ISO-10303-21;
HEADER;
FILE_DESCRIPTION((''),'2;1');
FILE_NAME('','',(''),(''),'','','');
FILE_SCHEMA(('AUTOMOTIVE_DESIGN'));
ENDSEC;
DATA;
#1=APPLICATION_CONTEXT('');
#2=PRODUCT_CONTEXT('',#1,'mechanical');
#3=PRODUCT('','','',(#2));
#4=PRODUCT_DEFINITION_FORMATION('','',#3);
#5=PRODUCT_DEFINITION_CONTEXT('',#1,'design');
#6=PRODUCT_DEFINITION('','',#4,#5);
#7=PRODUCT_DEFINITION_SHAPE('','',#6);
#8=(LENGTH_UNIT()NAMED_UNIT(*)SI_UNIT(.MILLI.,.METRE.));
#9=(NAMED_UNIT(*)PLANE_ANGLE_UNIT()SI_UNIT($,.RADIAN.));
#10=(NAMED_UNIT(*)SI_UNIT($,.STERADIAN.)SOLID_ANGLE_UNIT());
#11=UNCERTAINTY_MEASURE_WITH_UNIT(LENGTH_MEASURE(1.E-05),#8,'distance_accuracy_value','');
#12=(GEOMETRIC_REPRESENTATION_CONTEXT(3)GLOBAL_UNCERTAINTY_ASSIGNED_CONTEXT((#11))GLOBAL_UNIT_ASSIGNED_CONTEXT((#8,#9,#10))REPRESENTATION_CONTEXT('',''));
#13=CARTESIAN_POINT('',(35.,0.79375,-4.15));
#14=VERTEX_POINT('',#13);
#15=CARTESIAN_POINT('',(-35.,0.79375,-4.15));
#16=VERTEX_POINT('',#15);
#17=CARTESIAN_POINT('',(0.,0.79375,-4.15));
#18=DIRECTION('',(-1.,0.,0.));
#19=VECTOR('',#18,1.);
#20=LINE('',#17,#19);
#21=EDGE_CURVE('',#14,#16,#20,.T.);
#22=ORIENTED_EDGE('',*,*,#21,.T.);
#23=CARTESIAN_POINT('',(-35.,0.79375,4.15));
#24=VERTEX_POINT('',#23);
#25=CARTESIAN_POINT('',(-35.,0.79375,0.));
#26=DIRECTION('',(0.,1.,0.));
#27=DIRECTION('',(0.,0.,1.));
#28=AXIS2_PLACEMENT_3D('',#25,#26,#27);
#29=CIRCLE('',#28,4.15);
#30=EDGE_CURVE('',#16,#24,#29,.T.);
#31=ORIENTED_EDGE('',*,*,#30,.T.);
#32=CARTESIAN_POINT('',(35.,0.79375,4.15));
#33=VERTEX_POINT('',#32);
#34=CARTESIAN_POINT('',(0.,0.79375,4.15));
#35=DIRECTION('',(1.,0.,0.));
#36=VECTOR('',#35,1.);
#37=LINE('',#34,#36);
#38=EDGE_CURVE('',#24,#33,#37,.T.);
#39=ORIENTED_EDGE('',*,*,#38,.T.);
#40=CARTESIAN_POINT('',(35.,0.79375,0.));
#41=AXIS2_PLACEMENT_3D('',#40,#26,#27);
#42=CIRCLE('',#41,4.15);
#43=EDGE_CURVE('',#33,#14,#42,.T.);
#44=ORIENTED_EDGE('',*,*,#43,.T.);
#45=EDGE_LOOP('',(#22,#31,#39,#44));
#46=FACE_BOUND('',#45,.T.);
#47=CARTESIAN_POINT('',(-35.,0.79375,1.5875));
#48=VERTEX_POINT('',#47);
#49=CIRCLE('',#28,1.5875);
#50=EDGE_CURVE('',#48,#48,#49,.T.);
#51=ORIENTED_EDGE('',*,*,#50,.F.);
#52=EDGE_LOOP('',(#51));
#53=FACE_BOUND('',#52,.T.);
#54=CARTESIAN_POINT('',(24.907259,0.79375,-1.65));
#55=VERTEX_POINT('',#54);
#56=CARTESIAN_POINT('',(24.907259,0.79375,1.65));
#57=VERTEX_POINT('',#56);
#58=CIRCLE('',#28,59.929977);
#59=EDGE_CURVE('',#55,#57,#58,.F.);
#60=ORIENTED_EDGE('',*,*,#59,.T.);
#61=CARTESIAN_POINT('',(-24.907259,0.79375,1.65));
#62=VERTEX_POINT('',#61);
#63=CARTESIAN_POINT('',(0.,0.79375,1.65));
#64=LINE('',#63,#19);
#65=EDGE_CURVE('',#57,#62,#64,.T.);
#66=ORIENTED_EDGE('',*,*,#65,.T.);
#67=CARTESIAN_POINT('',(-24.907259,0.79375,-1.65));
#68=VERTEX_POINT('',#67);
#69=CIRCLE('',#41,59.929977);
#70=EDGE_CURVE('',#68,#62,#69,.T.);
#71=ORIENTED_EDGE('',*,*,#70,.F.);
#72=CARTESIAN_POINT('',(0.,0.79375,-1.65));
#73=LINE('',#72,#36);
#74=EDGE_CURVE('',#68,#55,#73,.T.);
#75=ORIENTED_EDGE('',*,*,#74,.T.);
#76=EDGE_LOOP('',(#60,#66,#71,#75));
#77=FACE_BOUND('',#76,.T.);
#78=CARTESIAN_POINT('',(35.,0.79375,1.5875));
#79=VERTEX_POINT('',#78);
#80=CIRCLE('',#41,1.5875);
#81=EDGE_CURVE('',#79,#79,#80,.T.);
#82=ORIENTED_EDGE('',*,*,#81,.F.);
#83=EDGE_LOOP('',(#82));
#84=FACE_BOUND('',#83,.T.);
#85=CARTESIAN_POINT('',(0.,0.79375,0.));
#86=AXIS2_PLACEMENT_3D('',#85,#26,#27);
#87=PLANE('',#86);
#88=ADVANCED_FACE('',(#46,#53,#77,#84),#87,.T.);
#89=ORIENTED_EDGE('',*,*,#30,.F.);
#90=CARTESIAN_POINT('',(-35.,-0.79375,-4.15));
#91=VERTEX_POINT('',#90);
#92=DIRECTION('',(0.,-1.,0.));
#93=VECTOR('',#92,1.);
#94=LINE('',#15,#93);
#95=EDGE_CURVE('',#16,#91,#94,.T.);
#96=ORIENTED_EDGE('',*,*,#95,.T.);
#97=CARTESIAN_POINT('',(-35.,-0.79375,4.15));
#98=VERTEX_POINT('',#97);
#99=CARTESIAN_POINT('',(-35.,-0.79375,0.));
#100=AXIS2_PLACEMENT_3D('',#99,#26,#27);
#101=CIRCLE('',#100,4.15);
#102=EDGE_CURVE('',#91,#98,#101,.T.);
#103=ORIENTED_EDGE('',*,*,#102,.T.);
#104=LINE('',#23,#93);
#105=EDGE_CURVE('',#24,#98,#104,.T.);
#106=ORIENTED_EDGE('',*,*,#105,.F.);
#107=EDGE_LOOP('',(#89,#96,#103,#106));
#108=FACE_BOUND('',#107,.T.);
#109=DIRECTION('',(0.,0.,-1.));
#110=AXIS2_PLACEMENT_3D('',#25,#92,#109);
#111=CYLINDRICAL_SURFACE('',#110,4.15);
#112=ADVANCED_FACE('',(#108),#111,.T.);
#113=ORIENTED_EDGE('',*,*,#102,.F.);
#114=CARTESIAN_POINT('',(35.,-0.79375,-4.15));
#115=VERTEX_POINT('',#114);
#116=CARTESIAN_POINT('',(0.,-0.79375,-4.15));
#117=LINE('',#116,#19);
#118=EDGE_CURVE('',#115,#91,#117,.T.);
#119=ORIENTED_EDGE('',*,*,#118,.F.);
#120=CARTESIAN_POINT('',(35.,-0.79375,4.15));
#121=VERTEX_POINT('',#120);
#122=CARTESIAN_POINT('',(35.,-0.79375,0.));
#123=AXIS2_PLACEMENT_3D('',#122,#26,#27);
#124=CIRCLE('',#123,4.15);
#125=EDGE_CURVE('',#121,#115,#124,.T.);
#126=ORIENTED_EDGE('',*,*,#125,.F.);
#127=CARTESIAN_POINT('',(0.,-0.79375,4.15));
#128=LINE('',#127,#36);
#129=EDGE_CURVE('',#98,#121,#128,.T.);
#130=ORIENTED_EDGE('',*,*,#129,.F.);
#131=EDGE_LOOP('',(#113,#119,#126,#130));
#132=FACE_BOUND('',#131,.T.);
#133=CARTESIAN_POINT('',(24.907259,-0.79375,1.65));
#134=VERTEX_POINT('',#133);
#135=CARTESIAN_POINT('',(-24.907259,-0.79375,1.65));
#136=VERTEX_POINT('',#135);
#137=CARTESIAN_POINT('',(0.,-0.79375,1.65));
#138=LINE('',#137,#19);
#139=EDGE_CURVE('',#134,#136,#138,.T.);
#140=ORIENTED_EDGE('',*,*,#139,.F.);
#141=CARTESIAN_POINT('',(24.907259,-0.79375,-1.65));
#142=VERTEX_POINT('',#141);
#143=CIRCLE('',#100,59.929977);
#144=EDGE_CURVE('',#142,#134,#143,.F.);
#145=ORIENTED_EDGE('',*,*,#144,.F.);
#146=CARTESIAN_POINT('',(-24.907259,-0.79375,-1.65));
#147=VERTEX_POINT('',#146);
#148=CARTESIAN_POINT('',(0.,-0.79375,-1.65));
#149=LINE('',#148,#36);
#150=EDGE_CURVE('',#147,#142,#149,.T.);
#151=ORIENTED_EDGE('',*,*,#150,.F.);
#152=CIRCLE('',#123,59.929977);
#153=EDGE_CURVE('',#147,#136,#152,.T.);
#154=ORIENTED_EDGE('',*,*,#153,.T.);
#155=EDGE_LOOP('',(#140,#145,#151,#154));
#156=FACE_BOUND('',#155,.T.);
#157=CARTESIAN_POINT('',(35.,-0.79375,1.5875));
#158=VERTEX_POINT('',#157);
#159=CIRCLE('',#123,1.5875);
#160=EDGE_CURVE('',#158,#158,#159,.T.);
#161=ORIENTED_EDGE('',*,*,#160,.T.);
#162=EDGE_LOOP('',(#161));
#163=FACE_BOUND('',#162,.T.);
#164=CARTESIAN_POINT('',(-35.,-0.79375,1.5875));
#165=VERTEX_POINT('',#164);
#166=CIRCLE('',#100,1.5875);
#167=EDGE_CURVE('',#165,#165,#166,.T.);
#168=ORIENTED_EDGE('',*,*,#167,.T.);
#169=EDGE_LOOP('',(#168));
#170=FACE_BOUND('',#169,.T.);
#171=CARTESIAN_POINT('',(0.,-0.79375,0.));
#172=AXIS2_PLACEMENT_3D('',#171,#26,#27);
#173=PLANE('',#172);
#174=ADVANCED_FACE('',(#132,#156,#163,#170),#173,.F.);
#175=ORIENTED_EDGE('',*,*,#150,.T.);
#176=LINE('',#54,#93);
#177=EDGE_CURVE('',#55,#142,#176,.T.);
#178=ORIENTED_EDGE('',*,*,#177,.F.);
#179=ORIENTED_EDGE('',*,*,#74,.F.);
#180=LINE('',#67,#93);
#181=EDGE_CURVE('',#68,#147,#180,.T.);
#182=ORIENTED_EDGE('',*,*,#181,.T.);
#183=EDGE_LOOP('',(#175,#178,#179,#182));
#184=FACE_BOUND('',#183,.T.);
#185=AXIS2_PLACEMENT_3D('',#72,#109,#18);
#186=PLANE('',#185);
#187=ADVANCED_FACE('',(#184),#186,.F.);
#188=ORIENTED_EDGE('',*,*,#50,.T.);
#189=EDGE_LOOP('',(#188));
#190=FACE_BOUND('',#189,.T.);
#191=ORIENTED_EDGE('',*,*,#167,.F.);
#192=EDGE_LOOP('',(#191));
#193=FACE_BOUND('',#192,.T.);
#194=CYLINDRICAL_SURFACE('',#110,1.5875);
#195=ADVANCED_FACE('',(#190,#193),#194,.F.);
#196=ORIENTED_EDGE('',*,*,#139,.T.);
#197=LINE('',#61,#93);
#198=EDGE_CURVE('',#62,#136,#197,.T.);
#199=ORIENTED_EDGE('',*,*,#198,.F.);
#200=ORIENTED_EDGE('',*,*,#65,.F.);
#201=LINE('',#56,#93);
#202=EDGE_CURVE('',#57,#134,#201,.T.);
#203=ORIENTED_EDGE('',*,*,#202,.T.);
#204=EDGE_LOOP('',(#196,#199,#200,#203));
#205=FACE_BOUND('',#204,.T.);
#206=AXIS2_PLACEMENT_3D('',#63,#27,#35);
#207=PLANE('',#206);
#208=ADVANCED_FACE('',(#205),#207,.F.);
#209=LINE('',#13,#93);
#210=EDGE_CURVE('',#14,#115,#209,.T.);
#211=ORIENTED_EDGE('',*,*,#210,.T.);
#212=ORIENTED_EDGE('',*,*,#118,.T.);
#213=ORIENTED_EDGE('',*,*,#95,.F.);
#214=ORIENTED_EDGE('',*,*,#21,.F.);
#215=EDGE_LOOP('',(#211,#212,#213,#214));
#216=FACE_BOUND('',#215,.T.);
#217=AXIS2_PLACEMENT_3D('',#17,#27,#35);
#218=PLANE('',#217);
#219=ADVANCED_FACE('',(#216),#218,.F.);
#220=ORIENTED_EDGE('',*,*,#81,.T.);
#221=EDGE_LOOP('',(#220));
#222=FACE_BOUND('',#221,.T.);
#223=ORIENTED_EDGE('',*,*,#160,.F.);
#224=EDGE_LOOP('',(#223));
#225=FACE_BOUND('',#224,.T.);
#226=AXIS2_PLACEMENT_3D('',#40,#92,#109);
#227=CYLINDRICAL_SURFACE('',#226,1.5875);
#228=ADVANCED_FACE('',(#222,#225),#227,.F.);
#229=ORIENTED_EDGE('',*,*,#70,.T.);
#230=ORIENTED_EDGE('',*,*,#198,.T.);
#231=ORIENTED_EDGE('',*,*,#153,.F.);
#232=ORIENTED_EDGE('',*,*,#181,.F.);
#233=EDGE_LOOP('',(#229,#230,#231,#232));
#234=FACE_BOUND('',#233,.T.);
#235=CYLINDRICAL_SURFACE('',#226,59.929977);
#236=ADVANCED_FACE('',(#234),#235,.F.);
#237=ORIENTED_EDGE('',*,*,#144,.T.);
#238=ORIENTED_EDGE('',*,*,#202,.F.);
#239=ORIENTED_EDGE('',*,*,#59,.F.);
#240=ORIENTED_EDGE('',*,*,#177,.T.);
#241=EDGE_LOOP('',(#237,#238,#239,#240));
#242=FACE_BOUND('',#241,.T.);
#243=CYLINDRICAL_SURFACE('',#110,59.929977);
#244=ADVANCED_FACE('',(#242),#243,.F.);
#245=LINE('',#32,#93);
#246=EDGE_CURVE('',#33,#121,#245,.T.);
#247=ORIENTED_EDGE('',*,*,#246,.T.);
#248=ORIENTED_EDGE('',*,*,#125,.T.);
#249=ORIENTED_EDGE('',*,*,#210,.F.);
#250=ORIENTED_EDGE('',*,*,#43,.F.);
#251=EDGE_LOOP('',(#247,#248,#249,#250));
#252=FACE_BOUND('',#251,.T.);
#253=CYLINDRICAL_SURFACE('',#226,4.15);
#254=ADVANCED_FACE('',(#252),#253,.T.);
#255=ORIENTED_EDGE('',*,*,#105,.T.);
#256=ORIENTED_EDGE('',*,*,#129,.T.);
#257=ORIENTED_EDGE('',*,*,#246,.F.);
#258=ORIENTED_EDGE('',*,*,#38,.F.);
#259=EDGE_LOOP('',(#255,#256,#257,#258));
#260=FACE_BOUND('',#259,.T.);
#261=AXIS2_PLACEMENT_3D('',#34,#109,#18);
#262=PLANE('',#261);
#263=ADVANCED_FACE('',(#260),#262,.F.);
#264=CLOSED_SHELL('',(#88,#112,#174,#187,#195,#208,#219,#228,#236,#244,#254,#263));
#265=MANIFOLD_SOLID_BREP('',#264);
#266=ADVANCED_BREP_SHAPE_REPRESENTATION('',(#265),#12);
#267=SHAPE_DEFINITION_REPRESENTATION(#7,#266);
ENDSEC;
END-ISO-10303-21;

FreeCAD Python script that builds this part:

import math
import FreeCAD as App
import Part
import Sketcher

V = App.Vector
Q = App.Units.Quantity

doc = App.newDocument("Part")
params = doc.addObject("Spreadsheet::Sheet", "Params")
for row, (alias, value) in enumerate([
    ("sketch1_width", "70 mm"),
    ("sketch1_radius", "4.15 mm"),
    ("pad1_length", "1.5875 mm"),
], start=1):
    params.set(f"A{row}", alias)
    params.set(f"B{row}", "=" + value)
    params.setAlias(f"B{row}", alias)

body = doc.addObject("PartDesign::Body", "Body")

# Sketch on XZ plane
sketch1 = body.newObject("Sketcher::SketchObject", "Sketch")
sketch1.AttachmentSupport = (doc.getObject("XZ_Plane"), [""])
sketch1.MapMode = "FlatFace"
sketch1.addGeometry([
    Part.LineSegment(V(35, -4.15, 0), V(-35, -4.15, 0)),  # 0
    Part.ArcOfCircle(Part.Circle(V(-35, 0, 0), V(0, 0, 1), 4.15), math.radians(90), math.radians(270)),  # 1
    Part.LineSegment(V(-35, 4.15, 0), V(35, 4.15, 0)),  # 2
    Part.ArcOfCircle(Part.Circle(V(35, 0, 0), V(0, 0, 1), 4.15), math.radians(-90), math.radians(90)),  # 3
    Part.Circle(V(-35, 0, 0), V(0, 0, 1), 1.5875),  # 4
    Part.ArcOfCircle(Part.Circle(V(-35.000001, 0, 0), V(0, 0, 1), 59.929978), math.radians(-1.577674), math.radians(1.577674)),  # 5
    Part.LineSegment(V(24.907259, 1.65, 0), V(-24.907259, 1.65, 0)),  # 6
    Part.ArcOfCircle(Part.Circle(V(35.000001, 0, 0), V(0, 0, 1), 59.929978), math.radians(178.422326), math.radians(181.577674)),  # 7
    Part.LineSegment(V(-24.907259, -1.65, 0), V(24.907259, -1.65, 0)),  # 8
    Part.Circle(V(35, 0, 0), V(0, 0, 1), 1.5875),  # 9
], False)
sketch1.addConstraint([
    Sketcher.Constraint("Tangent", 0, 2, 1, 2),
    Sketcher.Constraint("Tangent", 1, 1, 2, 1),
    Sketcher.Constraint("Tangent", 2, 2, 3, 2),
    Sketcher.Constraint("Tangent", 3, 1, 0, 1),
    Sketcher.Constraint("Coincident", 5, 2, 6, 1),
    Sketcher.Constraint("Coincident", 6, 2, 7, 1),
    Sketcher.Constraint("Coincident", 7, 2, 8, 1),
    Sketcher.Constraint("Coincident", 8, 2, 5, 1),
    Sketcher.Constraint("Horizontal", 0),
    Sketcher.Constraint("Horizontal", 2),
    Sketcher.Constraint("Horizontal", 6),
    Sketcher.Constraint("Horizontal", 8),
    Sketcher.Constraint("Coincident", 4, 3, 1, 3),
    Sketcher.Constraint("Coincident", 5, 3, 1, 3),
    Sketcher.Constraint("Coincident", 7, 3, 3, 3),
    Sketcher.Constraint("Coincident", 9, 3, 3, 3),
    Sketcher.Constraint("Equal", 5, 7),
    Sketcher.Constraint("Equal", 4, 9),
    Sketcher.Constraint("Symmetric", 1, 3, 3, 3, -1, 1),
    Sketcher.Constraint("Vertical", 6, 2, 7, 2),
    Sketcher.Constraint("DistanceX", 0, 2, 0, 1, Q("70 mm")),
    Sketcher.Constraint("Radius", 1, Q("4.15 mm")),
    Sketcher.Constraint("Diameter", 4, Q("3.175 mm")),
    Sketcher.Constraint("DistanceY", 5, 2, 2, 2, Q("2.5 mm")),
    Sketcher.Constraint("Radius", 5, Q("59.929978 mm")),
])
sketch1.setExpression("Constraints[20]", "Params.sketch1_width")
sketch1.setExpression("Constraints[21]", "Params.sketch1_radius")
pad1 = body.newObject("PartDesign::Pad", "Pad")
pad1.Profile = sketch1
pad1.setExpression("Length", "Params.pad1_length")
pad1.Midplane = True

doc.recompute()
